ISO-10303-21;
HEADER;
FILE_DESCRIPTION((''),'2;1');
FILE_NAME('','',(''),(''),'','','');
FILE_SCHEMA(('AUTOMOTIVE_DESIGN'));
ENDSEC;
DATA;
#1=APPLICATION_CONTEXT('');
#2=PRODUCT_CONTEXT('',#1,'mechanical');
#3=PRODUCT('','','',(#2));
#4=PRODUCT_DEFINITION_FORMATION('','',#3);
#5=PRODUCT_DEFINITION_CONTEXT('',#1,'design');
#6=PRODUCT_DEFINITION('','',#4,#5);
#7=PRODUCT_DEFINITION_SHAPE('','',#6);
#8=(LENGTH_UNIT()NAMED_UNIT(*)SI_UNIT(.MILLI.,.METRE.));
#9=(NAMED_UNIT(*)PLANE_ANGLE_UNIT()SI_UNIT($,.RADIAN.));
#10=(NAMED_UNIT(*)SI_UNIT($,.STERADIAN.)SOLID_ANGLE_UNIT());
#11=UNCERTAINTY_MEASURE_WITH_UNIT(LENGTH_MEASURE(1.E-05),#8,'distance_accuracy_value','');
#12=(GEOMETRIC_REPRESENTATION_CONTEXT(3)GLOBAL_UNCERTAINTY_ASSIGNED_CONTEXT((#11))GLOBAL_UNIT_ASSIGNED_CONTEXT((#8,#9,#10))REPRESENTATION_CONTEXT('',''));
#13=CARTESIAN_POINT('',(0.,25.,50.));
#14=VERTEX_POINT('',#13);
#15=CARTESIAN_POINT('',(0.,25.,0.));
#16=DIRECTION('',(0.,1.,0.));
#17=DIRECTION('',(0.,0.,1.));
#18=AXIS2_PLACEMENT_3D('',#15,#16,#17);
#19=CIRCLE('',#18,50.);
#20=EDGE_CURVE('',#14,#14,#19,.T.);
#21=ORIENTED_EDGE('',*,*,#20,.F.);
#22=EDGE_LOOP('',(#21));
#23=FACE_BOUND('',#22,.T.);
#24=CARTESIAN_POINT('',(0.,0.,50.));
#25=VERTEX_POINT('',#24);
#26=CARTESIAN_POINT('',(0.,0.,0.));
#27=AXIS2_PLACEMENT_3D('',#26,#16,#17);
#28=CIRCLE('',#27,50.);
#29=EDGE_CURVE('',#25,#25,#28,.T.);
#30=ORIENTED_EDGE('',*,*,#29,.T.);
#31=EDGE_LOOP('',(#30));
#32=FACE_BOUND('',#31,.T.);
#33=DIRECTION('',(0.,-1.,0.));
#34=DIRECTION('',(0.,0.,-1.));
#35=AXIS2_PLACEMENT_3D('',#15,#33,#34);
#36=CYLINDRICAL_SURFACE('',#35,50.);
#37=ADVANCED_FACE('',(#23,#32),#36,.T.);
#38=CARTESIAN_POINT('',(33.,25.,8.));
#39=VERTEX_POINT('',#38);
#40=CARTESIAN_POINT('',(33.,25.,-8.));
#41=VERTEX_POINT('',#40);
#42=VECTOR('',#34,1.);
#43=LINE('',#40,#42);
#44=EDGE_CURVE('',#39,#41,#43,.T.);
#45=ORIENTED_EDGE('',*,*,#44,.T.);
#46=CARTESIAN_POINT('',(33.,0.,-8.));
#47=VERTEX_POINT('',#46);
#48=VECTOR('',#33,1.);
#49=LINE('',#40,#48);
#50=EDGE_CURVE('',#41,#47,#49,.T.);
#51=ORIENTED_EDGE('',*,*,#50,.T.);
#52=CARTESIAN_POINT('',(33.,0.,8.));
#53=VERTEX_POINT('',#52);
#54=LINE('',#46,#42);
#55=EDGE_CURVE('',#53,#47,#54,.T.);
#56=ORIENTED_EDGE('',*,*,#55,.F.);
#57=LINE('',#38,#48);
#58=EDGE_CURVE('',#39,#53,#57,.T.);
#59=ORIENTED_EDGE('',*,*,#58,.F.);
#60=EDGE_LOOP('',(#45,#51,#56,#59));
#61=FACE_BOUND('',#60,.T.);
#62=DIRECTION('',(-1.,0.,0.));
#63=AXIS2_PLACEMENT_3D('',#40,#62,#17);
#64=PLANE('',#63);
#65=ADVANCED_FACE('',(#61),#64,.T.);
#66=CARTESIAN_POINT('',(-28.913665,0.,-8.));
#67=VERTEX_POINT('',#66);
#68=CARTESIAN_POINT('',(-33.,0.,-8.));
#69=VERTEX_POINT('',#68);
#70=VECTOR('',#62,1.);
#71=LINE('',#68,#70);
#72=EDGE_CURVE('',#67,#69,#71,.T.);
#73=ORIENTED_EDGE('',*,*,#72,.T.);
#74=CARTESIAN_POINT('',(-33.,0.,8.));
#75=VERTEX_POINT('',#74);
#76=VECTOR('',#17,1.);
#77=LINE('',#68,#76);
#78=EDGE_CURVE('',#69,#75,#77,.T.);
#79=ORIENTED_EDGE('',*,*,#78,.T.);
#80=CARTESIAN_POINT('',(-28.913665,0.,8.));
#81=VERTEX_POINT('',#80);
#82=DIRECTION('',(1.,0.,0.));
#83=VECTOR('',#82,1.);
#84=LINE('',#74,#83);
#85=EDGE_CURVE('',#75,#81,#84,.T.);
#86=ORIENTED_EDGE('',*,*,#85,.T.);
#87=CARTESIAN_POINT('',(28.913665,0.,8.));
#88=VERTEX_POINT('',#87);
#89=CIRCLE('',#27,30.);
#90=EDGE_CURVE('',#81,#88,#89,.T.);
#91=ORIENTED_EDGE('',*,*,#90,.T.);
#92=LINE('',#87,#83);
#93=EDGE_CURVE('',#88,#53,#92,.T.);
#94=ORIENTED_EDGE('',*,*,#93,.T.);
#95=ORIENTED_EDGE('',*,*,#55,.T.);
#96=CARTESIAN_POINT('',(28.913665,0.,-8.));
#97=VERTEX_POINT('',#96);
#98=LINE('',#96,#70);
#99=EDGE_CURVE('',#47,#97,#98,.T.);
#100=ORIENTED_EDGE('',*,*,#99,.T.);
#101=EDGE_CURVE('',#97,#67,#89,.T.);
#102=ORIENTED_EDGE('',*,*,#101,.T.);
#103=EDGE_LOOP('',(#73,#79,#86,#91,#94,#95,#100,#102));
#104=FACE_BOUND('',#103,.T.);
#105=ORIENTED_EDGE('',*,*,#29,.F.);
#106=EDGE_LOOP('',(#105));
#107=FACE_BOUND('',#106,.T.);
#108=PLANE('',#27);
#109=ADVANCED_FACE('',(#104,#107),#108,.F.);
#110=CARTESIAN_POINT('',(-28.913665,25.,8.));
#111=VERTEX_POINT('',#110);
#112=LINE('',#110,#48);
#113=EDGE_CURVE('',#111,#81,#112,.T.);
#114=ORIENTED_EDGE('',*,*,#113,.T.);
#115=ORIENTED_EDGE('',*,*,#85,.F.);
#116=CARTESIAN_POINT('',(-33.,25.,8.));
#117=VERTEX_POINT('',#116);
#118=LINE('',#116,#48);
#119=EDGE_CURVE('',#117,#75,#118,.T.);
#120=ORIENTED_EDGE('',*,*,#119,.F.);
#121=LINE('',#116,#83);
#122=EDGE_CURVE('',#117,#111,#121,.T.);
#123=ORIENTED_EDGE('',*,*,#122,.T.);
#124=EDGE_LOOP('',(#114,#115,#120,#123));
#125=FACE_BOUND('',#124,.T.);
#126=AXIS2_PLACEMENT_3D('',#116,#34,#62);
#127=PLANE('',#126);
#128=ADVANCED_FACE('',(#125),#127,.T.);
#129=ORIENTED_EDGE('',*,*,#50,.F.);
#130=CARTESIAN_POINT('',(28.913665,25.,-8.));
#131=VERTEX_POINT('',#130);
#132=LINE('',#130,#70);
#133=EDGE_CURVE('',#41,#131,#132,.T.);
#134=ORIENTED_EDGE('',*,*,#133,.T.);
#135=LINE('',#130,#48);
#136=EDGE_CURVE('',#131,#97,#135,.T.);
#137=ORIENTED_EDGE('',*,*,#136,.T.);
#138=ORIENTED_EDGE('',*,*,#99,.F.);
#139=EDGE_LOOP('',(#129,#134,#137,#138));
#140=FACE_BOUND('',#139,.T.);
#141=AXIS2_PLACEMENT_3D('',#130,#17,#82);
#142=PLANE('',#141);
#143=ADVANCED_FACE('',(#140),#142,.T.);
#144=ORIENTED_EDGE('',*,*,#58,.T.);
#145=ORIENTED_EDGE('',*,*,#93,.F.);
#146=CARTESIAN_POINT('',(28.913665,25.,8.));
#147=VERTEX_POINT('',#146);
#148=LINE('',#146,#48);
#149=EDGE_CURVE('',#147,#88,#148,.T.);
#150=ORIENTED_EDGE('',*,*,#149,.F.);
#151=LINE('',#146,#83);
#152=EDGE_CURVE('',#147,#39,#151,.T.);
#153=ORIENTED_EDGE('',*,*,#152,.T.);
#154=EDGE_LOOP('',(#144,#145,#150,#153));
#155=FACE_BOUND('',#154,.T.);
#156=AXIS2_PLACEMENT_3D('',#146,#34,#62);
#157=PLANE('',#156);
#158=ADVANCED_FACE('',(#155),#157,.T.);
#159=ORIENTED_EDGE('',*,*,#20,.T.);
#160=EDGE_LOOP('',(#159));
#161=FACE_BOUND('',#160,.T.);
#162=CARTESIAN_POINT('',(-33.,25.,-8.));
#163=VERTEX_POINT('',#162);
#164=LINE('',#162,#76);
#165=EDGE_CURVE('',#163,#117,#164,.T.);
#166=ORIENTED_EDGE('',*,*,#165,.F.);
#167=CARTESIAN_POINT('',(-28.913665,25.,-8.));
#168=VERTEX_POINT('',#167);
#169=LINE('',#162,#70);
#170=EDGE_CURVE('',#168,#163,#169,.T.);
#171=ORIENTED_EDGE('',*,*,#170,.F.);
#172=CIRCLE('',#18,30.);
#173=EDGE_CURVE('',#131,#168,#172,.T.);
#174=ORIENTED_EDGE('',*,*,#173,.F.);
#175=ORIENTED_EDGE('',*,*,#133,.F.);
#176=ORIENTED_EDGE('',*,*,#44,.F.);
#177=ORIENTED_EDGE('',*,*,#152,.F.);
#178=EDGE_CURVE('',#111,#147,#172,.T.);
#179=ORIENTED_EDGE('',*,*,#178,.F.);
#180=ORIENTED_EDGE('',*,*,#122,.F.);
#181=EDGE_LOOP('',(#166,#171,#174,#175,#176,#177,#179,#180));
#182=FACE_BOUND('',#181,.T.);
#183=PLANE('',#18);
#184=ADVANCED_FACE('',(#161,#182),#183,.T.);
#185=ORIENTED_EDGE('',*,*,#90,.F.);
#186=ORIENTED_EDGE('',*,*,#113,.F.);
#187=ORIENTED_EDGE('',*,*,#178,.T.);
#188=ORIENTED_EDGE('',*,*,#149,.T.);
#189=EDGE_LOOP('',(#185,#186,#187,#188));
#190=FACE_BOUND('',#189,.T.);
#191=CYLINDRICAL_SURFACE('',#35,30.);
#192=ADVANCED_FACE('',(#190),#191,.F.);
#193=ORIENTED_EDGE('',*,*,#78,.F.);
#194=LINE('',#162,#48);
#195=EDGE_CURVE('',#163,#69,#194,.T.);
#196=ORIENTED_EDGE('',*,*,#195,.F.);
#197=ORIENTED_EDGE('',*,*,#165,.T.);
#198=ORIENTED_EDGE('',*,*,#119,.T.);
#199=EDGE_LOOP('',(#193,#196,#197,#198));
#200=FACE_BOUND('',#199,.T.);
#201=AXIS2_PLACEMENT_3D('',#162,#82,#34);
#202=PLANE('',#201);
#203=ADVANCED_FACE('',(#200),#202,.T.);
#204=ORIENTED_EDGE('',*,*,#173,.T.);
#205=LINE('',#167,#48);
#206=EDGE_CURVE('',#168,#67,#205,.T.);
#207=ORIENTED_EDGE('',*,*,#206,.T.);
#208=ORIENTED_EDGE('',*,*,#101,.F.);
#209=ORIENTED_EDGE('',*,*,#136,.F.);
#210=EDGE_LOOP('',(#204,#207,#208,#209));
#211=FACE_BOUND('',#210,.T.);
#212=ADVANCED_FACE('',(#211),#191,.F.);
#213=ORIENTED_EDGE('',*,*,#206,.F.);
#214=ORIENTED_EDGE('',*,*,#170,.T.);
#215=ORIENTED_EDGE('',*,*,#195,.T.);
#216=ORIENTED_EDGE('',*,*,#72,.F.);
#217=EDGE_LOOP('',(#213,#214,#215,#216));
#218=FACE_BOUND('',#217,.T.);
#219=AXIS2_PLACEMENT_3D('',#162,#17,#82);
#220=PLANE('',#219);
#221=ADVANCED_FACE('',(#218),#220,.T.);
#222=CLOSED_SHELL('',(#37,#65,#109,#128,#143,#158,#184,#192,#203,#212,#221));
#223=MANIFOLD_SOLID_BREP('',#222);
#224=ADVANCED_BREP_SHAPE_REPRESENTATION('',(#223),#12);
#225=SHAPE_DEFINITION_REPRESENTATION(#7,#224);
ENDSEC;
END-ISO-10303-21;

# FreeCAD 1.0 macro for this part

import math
import FreeCAD as App
import Part
import Sketcher

doc = App.newDocument("Part")
body = doc.addObject("PartDesign::Body", "Body")

sketch1 = body.newObject("Sketcher::SketchObject", "Sketch")
sketch1.AttachmentSupport = (doc.getObject("XZ_Plane"), [""])
sketch1.MapMode = "FlatFace"
sketch1.addGeometry(Part.Circle(App.Vector(0, 0, 0), App.Vector(0, 0, 1), 50), False)
sketch1.addGeometry(Part.ArcOfCircle(Part.Circle(App.Vector(0, 0, 0), App.Vector(0, 0, 1), 30), math.radians(-164.53399), math.radians(-15.46601)), False)
sketch1.addGeometry(Part.LineSegment(App.Vector(28.913665, -8, 0), App.Vector(33, -8, 0)), False)
sketch1.addGeometry(Part.LineSegment(App.Vector(33, -8, 0), App.Vector(33, 8, 0)), False)
sketch1.addGeometry(Part.LineSegment(App.Vector(33, 8, 0), App.Vector(28.913665, 8, 0)), False)
sketch1.addGeometry(Part.ArcOfCircle(Part.Circle(App.Vector(0, 0, 0), App.Vector(0, 0, 1), 30), math.radians(15.46601), math.radians(164.53399)), False)
sketch1.addGeometry(Part.LineSegment(App.Vector(-28.913665, 8, 0), App.Vector(-33, 8, 0)), False)
sketch1.addGeometry(Part.LineSegment(App.Vector(-33, 8, 0), App.Vector(-33, -8, 0)), False)
sketch1.addGeometry(Part.LineSegment(App.Vector(-33, -8, 0), App.Vector(-28.913665, -8, 0)), False)
sketch1.addConstraint(Sketcher.Constraint("Coincident", 1, 2, 2, 1))
sketch1.addConstraint(Sketcher.Constraint("Coincident", 2, 2, 3, 1))
sketch1.addConstraint(Sketcher.Constraint("Coincident", 3, 2, 4, 1))
sketch1.addConstraint(Sketcher.Constraint("Coincident", 4, 2, 5, 1))
sketch1.addConstraint(Sketcher.Constraint("Coincident", 5, 2, 6, 1))
sketch1.addConstraint(Sketcher.Constraint("Coincident", 6, 2, 7, 1))
sketch1.addConstraint(Sketcher.Constraint("Coincident", 7, 2, 8, 1))
sketch1.addConstraint(Sketcher.Constraint("Coincident", 8, 2, 1, 1))
sketch1.addConstraint(Sketcher.Constraint("Horizontal", 2))
sketch1.addConstraint(Sketcher.Constraint("Vertical", 3))
sketch1.addConstraint(Sketcher.Constraint("Horizontal", 4))
sketch1.addConstraint(Sketcher.Constraint("Horizontal", 6))
sketch1.addConstraint(Sketcher.Constraint("Vertical", 7))
sketch1.addConstraint(Sketcher.Constraint("Horizontal", 8))
sketch1.addConstraint(Sketcher.Constraint("Coincident", 0, 3, -1, 1))
sketch1.addConstraint(Sketcher.Constraint("Coincident", 1, 3, -1, 1))
sketch1.addConstraint(Sketcher.Constraint("Coincident", 5, 3, -1, 1))
sketch1.addConstraint(Sketcher.Constraint("Equal", 1, 5))
sketch1.addConstraint(Sketcher.Constraint("Symmetric", 2, 2, 6, 2, -1, 1))
sketch1.addConstraint(Sketcher.Constraint("Horizontal", 4, 2, 5, 2))
sketch1.addConstraint(Sketcher.Constraint("Horizontal", 2, 2, 7, 2))
sketch1.addConstraint(Sketcher.Constraint("Diameter", 0, 100.0))
sketch1.addConstraint(Sketcher.Constraint("Radius", 1, 30.0))
sketch1.addConstraint(Sketcher.Constraint("DistanceY", 3, 1, 3, 2, 16.0))
sketch1.addConstraint(Sketcher.Constraint("DistanceX", -1, 1, 2, 2, 33.0))
pad1 = body.newObject("PartDesign::Pad", "Pad")
pad1.Profile = sketch1
pad1.Length = 25
pad1.Reversed = True

doc.recompute()
